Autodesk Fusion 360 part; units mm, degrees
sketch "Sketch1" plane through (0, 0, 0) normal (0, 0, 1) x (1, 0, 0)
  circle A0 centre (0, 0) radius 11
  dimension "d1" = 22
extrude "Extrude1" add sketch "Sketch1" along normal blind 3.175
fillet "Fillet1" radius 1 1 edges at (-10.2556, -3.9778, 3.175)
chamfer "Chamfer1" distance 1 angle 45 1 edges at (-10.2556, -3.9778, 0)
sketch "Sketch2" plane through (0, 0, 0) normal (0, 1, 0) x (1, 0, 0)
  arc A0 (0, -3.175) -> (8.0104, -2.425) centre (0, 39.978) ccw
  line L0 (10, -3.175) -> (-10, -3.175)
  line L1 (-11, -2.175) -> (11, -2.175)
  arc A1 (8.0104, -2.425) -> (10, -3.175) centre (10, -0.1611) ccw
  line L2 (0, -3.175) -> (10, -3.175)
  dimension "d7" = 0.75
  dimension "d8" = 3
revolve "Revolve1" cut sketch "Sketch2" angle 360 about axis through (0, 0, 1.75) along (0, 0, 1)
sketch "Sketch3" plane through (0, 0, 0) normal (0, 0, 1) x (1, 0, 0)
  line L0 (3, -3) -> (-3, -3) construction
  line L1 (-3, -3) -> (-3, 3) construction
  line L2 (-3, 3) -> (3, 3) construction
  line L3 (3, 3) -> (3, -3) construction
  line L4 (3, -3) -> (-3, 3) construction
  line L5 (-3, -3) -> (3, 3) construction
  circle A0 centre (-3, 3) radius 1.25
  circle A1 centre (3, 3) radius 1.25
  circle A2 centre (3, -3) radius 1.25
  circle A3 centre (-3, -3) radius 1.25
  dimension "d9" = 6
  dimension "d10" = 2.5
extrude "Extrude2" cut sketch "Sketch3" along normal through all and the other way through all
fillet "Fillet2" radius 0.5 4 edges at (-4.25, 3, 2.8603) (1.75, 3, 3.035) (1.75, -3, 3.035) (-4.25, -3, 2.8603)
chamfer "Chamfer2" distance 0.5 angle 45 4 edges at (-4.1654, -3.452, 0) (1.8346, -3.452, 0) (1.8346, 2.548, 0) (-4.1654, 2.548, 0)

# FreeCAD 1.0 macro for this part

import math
import FreeCAD as App
import Part
import Sketcher
from FreeCAD import Vector
Q = App.Units.Quantity


def edges_at(feature, points):
    """Names of the edges that pass closest to the given points."""
    edges = feature.Shape.Edges
    near = lambda p: min(range(len(edges)), key=lambda i: edges[i].distToShape(Part.Vertex(*p))[0])
    return sorted({f"Edge{near(p) + 1}" for p in points})

doc = App.newDocument("Part")
body = doc.addObject("PartDesign::Body", "Body")

# Sketch on XY plane
sketch1 = body.newObject("Sketcher::SketchObject", "Sketch")
sketch1.AttachmentSupport = (doc.getObject("XY_Plane"), [""])
sketch1.MapMode = "FlatFace"
sketch1.addGeometry(Part.Circle(Vector(0, 0, 0), Vector(0, 0, 1), 11), False)
sketch1.addConstraint(Sketcher.Constraint("Coincident", 0, 3, -1, 1))
sketch1.addConstraint(Sketcher.Constraint("Diameter", 0, Q("22 mm")))
pad1 = body.newObject("PartDesign::Pad", "Pad")
pad1.Profile = sketch1
pad1.Length = 3.175
doc.recompute()

fillet = body.newObject("PartDesign::Fillet", "Fillet")
fillet.Base = (pad1, edges_at(pad1, [(-10.256, -3.978, 3.175)]))
fillet.Radius = 1
doc.recompute()

chamfer = body.newObject("PartDesign::Chamfer", "Chamfer")
chamfer.Base = (fillet, edges_at(fillet, [(-10.256, -3.978, 0)]))
chamfer.Size = 1

# Sketch on XZ plane
sketch2 = body.newObject("Sketcher::SketchObject", "Sketch001")
sketch2.AttachmentSupport = (doc.getObject("XZ_Plane"), [""])
sketch2.MapMode = "FlatFace"
sketch2.addGeometry(Part.ArcOfCircle(Part.Circle(Vector(0, -40, 0), Vector(0, 0, 1), 43.2), math.radians(79.3), math.radians(90)), False)
sketch2.addGeometry(Part.LineSegment(Vector(0, 3.2, 0), Vector(10, 3.2, 0)), False)
sketch2.addGeometry(Part.ArcOfCircle(Part.Circle(Vector(10, 0.2, 0), Vector(0, 0, 1), 3), math.radians(90), math.radians(131)), False)
sketch2.addConstraint(Sketcher.Constraint("Tangent", 0, 2, 1, 1))
sketch2.addConstraint(Sketcher.Constraint("Tangent", 1, 2, 2, 1))
sketch2.addConstraint(Sketcher.Constraint("Coincident", 2, 2, 0, 1))
sketch2.addConstraint(Sketcher.Constraint("Horizontal", 1))
sketch2.addConstraint(Sketcher.Constraint("PointOnObject", 0, 3, -2))
sketch2.addConstraint(Sketcher.Constraint("DistanceX", 1, 1, 1, 2, Q("10 mm")))
sketch2.addConstraint(Sketcher.Constraint("DistanceY", 2, 2, 1, 2, Q("0.75 mm")))
sketch2.addConstraint(Sketcher.Constraint("Radius", 0, Q("43.153 mm")))
sketch2.addConstraint(Sketcher.Constraint("DistanceY", 0, 3, -1, 1, Q("39.978 mm")))
groove = body.newObject("PartDesign::Groove", "Groove")
groove.Profile = sketch2
groove.ReferenceAxis = (sketch2, ["V_Axis"])
groove.Angle = 360

# Sketch on XY plane
sketch3 = body.newObject("Sketcher::SketchObject", "Sketch002")
sketch3.AttachmentSupport = (doc.getObject("XY_Plane"), [""])
sketch3.MapMode = "FlatFace"
sketch3.addGeometry(Part.Circle(Vector(-3, 3, 0), Vector(0, 0, 1), 1.2), False)
sketch3.addGeometry(Part.Circle(Vector(3, 3, 0), Vector(0, 0, 1), 1.2), False)
sketch3.addGeometry(Part.Circle(Vector(3, -3, 0), Vector(0, 0, 1), 1.2), False)
sketch3.addGeometry(Part.Circle(Vector(-3, -3, 0), Vector(0, 0, 1), 1.2), False)
sketch3.addConstraint(Sketcher.Constraint("Equal", 0, 1))
sketch3.addConstraint(Sketcher.Constraint("Equal", 1, 2))
sketch3.addConstraint(Sketcher.Constraint("Equal", 2, 3))
sketch3.addConstraint(Sketcher.Constraint("Symmetric", 0, 3, 2, 3, -1, 1))
sketch3.addConstraint(Sketcher.Constraint("Symmetric", 1, 3, 3, 3, -1, 1))
sketch3.addConstraint(Sketcher.Constraint("Symmetric", 0, 3, 1, 3, -2))
sketch3.addConstraint(Sketcher.Constraint("Diameter", 0, Q("2.5 mm")))
sketch3.addConstraint(Sketcher.Constraint("DistanceX", 0, 3, 1, 3, Q("6 mm")))
sketch3.addConstraint(Sketcher.Constraint("DistanceY", 2, 3, 1, 3, Q("6 mm")))
pocket1 = body.newObject("PartDesign::Pocket", "Pocket")
pocket1.Profile = sketch3
pocket1.Type = "ThroughAll"
pocket1.Reversed = True
doc.recompute()

fillet2 = body.newObject("PartDesign::Fillet", "Fillet001")
fillet2.Base = (pocket1, edges_at(pocket1, [
    (-4.25, 3, 2.86),
    (1.75, 3, 3.035),
    (1.75, -3, 3.035),
    (-4.25, -3, 2.86),
]))
fillet2.Radius = 0.5
doc.recompute()

chamfer2 = body.newObject("PartDesign::Chamfer", "Chamfer001")
chamfer2.Base = (fillet2, edges_at(fillet2, [
    (-4.165, -3.452, 0),
    (1.835, -3.452, 0),
    (1.835, 2.548, 0),
    (-4.165, 2.548, 0),
]))
chamfer2.Size = 0.5

doc.recompute()
